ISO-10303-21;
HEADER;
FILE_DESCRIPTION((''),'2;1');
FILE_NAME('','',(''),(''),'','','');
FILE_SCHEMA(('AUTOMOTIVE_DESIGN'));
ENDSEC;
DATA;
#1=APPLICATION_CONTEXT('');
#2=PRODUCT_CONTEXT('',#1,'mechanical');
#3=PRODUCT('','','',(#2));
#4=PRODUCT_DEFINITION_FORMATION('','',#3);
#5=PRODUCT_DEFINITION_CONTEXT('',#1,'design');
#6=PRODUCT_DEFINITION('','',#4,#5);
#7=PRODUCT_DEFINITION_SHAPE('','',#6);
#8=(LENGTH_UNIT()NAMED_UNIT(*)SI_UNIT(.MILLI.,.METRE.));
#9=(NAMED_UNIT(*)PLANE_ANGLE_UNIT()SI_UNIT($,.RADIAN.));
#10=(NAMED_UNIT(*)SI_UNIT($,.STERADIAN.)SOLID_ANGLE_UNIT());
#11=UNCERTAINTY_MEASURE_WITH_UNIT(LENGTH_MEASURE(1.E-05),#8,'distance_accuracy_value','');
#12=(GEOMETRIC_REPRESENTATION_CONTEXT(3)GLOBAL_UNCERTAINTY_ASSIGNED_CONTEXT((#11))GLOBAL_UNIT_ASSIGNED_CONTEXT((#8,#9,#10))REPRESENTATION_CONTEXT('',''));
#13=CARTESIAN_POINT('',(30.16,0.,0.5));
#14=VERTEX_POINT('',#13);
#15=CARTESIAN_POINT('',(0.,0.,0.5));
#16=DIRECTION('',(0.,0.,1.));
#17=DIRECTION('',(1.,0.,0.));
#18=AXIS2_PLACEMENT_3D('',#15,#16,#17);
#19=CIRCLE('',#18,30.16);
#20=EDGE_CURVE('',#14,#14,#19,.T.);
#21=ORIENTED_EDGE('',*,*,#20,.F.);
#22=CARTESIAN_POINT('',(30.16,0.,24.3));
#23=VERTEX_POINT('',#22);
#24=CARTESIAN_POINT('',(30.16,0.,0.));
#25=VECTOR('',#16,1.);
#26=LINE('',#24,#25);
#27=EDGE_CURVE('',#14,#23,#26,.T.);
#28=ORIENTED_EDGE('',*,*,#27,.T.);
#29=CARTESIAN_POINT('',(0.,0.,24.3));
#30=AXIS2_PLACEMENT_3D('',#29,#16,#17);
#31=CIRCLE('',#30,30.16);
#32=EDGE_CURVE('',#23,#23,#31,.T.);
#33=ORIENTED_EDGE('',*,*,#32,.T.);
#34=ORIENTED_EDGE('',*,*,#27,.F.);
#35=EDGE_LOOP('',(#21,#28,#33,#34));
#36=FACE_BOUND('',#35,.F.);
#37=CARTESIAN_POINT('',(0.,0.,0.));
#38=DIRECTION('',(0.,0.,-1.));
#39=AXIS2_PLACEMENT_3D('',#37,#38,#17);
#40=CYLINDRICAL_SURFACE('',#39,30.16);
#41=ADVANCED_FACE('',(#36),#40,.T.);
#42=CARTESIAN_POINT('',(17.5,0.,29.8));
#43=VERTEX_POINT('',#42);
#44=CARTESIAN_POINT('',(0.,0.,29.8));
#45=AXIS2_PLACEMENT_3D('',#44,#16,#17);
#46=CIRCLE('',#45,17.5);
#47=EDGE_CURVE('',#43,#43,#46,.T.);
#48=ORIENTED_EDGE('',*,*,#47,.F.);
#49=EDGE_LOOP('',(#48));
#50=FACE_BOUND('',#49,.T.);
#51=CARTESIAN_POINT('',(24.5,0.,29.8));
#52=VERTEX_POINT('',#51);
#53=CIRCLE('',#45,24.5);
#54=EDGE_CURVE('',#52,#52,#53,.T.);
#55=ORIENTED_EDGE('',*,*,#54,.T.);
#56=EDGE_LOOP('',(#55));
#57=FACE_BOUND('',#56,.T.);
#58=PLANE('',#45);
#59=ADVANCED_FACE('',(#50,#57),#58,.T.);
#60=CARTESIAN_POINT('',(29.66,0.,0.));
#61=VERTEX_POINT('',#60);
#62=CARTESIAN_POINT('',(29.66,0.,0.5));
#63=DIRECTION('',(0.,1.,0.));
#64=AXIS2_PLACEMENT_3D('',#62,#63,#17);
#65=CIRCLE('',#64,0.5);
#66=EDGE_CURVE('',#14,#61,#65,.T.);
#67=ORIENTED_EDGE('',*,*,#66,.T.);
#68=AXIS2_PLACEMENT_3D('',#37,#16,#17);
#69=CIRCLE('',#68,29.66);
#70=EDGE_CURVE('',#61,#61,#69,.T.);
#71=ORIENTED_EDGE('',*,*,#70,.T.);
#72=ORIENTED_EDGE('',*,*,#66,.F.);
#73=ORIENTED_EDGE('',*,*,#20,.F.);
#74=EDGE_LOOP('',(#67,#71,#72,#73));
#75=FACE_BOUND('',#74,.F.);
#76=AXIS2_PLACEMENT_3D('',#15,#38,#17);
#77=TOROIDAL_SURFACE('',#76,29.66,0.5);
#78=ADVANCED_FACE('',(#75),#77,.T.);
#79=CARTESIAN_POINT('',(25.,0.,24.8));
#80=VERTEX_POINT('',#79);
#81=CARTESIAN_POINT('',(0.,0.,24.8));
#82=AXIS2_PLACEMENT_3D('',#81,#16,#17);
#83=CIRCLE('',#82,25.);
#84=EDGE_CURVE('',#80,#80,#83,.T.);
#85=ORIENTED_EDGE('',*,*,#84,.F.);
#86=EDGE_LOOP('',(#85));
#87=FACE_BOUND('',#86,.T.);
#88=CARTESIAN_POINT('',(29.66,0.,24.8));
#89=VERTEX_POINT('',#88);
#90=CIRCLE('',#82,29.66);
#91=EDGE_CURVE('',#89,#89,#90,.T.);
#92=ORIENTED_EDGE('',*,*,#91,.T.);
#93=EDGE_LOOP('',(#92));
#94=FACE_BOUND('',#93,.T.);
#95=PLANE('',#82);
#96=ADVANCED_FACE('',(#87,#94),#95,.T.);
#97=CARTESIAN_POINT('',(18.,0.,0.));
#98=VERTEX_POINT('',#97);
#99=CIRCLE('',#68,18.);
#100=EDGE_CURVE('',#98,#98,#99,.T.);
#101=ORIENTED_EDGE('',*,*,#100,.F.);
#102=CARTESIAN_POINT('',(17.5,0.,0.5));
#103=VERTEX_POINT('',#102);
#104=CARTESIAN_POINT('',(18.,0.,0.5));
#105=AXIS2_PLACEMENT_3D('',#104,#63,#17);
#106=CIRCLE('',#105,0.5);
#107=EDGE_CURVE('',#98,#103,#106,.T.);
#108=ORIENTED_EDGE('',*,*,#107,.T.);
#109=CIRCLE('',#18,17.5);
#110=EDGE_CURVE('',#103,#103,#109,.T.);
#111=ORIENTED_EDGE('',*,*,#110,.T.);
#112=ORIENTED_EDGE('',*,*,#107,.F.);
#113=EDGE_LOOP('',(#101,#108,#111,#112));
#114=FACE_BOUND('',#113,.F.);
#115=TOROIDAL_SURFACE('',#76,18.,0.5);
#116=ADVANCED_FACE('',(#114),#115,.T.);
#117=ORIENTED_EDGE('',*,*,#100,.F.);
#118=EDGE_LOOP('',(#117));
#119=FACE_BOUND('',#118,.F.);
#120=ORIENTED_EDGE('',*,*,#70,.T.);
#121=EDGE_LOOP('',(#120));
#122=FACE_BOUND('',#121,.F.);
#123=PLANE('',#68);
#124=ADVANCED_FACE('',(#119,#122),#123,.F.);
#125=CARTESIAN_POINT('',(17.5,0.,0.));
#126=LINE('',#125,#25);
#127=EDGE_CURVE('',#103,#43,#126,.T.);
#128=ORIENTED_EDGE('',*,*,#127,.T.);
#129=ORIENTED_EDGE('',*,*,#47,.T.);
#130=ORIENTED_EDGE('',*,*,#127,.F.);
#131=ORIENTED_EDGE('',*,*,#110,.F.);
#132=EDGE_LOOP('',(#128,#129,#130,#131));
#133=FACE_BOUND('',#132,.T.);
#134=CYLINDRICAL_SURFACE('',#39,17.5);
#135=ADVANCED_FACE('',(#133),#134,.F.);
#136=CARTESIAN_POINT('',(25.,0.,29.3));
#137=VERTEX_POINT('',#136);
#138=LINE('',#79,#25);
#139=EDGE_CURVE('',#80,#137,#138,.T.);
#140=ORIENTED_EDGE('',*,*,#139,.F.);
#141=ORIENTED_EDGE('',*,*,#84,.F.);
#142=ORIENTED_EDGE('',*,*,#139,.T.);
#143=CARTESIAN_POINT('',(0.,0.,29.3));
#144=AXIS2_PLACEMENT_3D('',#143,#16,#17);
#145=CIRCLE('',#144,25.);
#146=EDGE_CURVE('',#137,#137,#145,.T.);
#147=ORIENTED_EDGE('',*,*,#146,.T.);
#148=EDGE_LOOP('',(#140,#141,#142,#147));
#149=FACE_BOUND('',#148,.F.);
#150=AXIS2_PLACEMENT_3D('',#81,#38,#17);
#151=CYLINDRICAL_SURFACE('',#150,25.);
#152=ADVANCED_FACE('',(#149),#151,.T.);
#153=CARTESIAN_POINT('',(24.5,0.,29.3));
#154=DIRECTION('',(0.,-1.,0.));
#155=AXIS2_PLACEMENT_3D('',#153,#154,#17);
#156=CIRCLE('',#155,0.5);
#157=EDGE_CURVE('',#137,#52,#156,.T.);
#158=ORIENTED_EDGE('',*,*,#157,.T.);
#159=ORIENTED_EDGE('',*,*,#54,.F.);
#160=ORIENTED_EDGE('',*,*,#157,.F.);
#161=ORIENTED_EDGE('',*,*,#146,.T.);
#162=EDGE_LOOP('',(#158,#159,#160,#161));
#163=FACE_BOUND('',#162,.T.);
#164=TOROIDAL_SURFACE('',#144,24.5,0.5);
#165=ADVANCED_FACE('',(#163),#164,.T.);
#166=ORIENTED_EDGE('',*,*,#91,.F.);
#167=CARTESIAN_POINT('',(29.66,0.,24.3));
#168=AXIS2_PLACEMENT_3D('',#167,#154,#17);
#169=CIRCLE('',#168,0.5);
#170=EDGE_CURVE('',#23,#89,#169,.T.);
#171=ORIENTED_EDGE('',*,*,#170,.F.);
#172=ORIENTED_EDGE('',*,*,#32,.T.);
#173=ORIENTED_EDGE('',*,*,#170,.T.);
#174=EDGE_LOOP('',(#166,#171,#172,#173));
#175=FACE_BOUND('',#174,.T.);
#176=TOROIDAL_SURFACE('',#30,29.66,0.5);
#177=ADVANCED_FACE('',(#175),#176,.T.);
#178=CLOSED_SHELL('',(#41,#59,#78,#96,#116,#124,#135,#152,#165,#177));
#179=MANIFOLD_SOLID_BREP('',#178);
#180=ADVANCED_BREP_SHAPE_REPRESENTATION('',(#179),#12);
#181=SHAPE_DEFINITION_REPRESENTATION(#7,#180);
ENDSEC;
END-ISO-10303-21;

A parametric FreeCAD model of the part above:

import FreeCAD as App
import Part
import Sketcher


def edges_at(feature, points):
    """Names of the edges that pass closest to the given points."""
    edges = feature.Shape.Edges
    near = lambda p: min(range(len(edges)), key=lambda i: edges[i].distToShape(Part.Vertex(*p))[0])
    return sorted({f"Edge{near(p) + 1}" for p in points})

doc = App.newDocument("Part")
body = doc.addObject("PartDesign::Body", "Body")

sketch1 = doc.addObject("Sketcher::SketchObject", "Sketch")
body.addObject(sketch1)
sketch1.AttachmentSupport = (doc.XY_Plane, [""])
sketch1.MapMode = "FlatFace"
sketch1.addGeometry(Part.Circle(App.Vector(0, 0, 0), App.Vector(0, 0, 1), 30.16), False)
sketch1.addGeometry(Part.Circle(App.Vector(0, 0, 0), App.Vector(0, 0, 1), 17.5), False)
sketch1.addConstraint(Sketcher.Constraint("Coincident", 0, 3, -1, 1))
sketch1.addConstraint(Sketcher.Constraint("Coincident", 1, 3, -1, 1))
sketch1.addConstraint(Sketcher.Constraint("Diameter", 1, 35.0))
sketch1.addConstraint(Sketcher.Constraint("Diameter", 0, 60.32))
pad1 = doc.addObject("PartDesign::Pad", "Pad")
body.addObject(pad1)
pad1.Profile = sketch1
pad1.Length = 24.8

sketch2 = doc.addObject("Sketcher::SketchObject", "Sketch001")
body.addObject(sketch2)
sketch2.AttachmentSupport = (doc.XY_Plane, [""])
sketch2.MapMode = "FlatFace"
sketch2.AttachmentOffset = App.Placement(App.Vector(0, 0, 24.8), App.Rotation())
sketch2.addGeometry(Part.Circle(App.Vector(0, 0, 0), App.Vector(0, 0, 1), 25), False)
sketch2.addConstraint(Sketcher.Constraint("Coincident", 0, 3, -1, 1))
sketch2.addConstraint(Sketcher.Constraint("Diameter", 0, 50.0))
pad2 = doc.addObject("PartDesign::Pad", "Pad001")
body.addObject(pad2)
pad2.Profile = sketch2
pad2.Length = 5

sketch3 = doc.addObject("Sketcher::SketchObject", "Sketch002")
body.addObject(sketch3)
sketch3.AttachmentSupport = (doc.XY_Plane, [""])
sketch3.MapMode = "FlatFace"
sketch3.AttachmentOffset = App.Placement(App.Vector(0, 0, 29.8), App.Rotation())
sketch3.addGeometry(Part.Circle(App.Vector(0, 0, 0), App.Vector(0, 0, 1), 17.5), False)
sketch3.addConstraint(Sketcher.Constraint("Coincident", 0, 3, -1, 1))
sketch3.addConstraint(Sketcher.Constraint("Diameter", 0, 35.0))
pocket1 = doc.addObject("PartDesign::Pocket", "Pocket")
body.addObject(pocket1)
pocket1.Profile = sketch3
pocket1.Length = 71.75
doc.recompute()

fillet = doc.addObject("PartDesign::Fillet", "Fillet")
body.addObject(fillet)
fillet.Base = (pocket1, edges_at(pocket1, [(-30.16, 0, 24.8)]))
fillet.Radius = 0.5
doc.recompute()

fillet2 = doc.addObject("PartDesign::Fillet", "Fillet001")
body.addObject(fillet2)
fillet2.Base = (fillet, edges_at(fillet, [(-30.16, 0, 0), (-25, 0, 29.8), (-17.5, 0, 0)]))
fillet2.Radius = 0.5

doc.recompute()
